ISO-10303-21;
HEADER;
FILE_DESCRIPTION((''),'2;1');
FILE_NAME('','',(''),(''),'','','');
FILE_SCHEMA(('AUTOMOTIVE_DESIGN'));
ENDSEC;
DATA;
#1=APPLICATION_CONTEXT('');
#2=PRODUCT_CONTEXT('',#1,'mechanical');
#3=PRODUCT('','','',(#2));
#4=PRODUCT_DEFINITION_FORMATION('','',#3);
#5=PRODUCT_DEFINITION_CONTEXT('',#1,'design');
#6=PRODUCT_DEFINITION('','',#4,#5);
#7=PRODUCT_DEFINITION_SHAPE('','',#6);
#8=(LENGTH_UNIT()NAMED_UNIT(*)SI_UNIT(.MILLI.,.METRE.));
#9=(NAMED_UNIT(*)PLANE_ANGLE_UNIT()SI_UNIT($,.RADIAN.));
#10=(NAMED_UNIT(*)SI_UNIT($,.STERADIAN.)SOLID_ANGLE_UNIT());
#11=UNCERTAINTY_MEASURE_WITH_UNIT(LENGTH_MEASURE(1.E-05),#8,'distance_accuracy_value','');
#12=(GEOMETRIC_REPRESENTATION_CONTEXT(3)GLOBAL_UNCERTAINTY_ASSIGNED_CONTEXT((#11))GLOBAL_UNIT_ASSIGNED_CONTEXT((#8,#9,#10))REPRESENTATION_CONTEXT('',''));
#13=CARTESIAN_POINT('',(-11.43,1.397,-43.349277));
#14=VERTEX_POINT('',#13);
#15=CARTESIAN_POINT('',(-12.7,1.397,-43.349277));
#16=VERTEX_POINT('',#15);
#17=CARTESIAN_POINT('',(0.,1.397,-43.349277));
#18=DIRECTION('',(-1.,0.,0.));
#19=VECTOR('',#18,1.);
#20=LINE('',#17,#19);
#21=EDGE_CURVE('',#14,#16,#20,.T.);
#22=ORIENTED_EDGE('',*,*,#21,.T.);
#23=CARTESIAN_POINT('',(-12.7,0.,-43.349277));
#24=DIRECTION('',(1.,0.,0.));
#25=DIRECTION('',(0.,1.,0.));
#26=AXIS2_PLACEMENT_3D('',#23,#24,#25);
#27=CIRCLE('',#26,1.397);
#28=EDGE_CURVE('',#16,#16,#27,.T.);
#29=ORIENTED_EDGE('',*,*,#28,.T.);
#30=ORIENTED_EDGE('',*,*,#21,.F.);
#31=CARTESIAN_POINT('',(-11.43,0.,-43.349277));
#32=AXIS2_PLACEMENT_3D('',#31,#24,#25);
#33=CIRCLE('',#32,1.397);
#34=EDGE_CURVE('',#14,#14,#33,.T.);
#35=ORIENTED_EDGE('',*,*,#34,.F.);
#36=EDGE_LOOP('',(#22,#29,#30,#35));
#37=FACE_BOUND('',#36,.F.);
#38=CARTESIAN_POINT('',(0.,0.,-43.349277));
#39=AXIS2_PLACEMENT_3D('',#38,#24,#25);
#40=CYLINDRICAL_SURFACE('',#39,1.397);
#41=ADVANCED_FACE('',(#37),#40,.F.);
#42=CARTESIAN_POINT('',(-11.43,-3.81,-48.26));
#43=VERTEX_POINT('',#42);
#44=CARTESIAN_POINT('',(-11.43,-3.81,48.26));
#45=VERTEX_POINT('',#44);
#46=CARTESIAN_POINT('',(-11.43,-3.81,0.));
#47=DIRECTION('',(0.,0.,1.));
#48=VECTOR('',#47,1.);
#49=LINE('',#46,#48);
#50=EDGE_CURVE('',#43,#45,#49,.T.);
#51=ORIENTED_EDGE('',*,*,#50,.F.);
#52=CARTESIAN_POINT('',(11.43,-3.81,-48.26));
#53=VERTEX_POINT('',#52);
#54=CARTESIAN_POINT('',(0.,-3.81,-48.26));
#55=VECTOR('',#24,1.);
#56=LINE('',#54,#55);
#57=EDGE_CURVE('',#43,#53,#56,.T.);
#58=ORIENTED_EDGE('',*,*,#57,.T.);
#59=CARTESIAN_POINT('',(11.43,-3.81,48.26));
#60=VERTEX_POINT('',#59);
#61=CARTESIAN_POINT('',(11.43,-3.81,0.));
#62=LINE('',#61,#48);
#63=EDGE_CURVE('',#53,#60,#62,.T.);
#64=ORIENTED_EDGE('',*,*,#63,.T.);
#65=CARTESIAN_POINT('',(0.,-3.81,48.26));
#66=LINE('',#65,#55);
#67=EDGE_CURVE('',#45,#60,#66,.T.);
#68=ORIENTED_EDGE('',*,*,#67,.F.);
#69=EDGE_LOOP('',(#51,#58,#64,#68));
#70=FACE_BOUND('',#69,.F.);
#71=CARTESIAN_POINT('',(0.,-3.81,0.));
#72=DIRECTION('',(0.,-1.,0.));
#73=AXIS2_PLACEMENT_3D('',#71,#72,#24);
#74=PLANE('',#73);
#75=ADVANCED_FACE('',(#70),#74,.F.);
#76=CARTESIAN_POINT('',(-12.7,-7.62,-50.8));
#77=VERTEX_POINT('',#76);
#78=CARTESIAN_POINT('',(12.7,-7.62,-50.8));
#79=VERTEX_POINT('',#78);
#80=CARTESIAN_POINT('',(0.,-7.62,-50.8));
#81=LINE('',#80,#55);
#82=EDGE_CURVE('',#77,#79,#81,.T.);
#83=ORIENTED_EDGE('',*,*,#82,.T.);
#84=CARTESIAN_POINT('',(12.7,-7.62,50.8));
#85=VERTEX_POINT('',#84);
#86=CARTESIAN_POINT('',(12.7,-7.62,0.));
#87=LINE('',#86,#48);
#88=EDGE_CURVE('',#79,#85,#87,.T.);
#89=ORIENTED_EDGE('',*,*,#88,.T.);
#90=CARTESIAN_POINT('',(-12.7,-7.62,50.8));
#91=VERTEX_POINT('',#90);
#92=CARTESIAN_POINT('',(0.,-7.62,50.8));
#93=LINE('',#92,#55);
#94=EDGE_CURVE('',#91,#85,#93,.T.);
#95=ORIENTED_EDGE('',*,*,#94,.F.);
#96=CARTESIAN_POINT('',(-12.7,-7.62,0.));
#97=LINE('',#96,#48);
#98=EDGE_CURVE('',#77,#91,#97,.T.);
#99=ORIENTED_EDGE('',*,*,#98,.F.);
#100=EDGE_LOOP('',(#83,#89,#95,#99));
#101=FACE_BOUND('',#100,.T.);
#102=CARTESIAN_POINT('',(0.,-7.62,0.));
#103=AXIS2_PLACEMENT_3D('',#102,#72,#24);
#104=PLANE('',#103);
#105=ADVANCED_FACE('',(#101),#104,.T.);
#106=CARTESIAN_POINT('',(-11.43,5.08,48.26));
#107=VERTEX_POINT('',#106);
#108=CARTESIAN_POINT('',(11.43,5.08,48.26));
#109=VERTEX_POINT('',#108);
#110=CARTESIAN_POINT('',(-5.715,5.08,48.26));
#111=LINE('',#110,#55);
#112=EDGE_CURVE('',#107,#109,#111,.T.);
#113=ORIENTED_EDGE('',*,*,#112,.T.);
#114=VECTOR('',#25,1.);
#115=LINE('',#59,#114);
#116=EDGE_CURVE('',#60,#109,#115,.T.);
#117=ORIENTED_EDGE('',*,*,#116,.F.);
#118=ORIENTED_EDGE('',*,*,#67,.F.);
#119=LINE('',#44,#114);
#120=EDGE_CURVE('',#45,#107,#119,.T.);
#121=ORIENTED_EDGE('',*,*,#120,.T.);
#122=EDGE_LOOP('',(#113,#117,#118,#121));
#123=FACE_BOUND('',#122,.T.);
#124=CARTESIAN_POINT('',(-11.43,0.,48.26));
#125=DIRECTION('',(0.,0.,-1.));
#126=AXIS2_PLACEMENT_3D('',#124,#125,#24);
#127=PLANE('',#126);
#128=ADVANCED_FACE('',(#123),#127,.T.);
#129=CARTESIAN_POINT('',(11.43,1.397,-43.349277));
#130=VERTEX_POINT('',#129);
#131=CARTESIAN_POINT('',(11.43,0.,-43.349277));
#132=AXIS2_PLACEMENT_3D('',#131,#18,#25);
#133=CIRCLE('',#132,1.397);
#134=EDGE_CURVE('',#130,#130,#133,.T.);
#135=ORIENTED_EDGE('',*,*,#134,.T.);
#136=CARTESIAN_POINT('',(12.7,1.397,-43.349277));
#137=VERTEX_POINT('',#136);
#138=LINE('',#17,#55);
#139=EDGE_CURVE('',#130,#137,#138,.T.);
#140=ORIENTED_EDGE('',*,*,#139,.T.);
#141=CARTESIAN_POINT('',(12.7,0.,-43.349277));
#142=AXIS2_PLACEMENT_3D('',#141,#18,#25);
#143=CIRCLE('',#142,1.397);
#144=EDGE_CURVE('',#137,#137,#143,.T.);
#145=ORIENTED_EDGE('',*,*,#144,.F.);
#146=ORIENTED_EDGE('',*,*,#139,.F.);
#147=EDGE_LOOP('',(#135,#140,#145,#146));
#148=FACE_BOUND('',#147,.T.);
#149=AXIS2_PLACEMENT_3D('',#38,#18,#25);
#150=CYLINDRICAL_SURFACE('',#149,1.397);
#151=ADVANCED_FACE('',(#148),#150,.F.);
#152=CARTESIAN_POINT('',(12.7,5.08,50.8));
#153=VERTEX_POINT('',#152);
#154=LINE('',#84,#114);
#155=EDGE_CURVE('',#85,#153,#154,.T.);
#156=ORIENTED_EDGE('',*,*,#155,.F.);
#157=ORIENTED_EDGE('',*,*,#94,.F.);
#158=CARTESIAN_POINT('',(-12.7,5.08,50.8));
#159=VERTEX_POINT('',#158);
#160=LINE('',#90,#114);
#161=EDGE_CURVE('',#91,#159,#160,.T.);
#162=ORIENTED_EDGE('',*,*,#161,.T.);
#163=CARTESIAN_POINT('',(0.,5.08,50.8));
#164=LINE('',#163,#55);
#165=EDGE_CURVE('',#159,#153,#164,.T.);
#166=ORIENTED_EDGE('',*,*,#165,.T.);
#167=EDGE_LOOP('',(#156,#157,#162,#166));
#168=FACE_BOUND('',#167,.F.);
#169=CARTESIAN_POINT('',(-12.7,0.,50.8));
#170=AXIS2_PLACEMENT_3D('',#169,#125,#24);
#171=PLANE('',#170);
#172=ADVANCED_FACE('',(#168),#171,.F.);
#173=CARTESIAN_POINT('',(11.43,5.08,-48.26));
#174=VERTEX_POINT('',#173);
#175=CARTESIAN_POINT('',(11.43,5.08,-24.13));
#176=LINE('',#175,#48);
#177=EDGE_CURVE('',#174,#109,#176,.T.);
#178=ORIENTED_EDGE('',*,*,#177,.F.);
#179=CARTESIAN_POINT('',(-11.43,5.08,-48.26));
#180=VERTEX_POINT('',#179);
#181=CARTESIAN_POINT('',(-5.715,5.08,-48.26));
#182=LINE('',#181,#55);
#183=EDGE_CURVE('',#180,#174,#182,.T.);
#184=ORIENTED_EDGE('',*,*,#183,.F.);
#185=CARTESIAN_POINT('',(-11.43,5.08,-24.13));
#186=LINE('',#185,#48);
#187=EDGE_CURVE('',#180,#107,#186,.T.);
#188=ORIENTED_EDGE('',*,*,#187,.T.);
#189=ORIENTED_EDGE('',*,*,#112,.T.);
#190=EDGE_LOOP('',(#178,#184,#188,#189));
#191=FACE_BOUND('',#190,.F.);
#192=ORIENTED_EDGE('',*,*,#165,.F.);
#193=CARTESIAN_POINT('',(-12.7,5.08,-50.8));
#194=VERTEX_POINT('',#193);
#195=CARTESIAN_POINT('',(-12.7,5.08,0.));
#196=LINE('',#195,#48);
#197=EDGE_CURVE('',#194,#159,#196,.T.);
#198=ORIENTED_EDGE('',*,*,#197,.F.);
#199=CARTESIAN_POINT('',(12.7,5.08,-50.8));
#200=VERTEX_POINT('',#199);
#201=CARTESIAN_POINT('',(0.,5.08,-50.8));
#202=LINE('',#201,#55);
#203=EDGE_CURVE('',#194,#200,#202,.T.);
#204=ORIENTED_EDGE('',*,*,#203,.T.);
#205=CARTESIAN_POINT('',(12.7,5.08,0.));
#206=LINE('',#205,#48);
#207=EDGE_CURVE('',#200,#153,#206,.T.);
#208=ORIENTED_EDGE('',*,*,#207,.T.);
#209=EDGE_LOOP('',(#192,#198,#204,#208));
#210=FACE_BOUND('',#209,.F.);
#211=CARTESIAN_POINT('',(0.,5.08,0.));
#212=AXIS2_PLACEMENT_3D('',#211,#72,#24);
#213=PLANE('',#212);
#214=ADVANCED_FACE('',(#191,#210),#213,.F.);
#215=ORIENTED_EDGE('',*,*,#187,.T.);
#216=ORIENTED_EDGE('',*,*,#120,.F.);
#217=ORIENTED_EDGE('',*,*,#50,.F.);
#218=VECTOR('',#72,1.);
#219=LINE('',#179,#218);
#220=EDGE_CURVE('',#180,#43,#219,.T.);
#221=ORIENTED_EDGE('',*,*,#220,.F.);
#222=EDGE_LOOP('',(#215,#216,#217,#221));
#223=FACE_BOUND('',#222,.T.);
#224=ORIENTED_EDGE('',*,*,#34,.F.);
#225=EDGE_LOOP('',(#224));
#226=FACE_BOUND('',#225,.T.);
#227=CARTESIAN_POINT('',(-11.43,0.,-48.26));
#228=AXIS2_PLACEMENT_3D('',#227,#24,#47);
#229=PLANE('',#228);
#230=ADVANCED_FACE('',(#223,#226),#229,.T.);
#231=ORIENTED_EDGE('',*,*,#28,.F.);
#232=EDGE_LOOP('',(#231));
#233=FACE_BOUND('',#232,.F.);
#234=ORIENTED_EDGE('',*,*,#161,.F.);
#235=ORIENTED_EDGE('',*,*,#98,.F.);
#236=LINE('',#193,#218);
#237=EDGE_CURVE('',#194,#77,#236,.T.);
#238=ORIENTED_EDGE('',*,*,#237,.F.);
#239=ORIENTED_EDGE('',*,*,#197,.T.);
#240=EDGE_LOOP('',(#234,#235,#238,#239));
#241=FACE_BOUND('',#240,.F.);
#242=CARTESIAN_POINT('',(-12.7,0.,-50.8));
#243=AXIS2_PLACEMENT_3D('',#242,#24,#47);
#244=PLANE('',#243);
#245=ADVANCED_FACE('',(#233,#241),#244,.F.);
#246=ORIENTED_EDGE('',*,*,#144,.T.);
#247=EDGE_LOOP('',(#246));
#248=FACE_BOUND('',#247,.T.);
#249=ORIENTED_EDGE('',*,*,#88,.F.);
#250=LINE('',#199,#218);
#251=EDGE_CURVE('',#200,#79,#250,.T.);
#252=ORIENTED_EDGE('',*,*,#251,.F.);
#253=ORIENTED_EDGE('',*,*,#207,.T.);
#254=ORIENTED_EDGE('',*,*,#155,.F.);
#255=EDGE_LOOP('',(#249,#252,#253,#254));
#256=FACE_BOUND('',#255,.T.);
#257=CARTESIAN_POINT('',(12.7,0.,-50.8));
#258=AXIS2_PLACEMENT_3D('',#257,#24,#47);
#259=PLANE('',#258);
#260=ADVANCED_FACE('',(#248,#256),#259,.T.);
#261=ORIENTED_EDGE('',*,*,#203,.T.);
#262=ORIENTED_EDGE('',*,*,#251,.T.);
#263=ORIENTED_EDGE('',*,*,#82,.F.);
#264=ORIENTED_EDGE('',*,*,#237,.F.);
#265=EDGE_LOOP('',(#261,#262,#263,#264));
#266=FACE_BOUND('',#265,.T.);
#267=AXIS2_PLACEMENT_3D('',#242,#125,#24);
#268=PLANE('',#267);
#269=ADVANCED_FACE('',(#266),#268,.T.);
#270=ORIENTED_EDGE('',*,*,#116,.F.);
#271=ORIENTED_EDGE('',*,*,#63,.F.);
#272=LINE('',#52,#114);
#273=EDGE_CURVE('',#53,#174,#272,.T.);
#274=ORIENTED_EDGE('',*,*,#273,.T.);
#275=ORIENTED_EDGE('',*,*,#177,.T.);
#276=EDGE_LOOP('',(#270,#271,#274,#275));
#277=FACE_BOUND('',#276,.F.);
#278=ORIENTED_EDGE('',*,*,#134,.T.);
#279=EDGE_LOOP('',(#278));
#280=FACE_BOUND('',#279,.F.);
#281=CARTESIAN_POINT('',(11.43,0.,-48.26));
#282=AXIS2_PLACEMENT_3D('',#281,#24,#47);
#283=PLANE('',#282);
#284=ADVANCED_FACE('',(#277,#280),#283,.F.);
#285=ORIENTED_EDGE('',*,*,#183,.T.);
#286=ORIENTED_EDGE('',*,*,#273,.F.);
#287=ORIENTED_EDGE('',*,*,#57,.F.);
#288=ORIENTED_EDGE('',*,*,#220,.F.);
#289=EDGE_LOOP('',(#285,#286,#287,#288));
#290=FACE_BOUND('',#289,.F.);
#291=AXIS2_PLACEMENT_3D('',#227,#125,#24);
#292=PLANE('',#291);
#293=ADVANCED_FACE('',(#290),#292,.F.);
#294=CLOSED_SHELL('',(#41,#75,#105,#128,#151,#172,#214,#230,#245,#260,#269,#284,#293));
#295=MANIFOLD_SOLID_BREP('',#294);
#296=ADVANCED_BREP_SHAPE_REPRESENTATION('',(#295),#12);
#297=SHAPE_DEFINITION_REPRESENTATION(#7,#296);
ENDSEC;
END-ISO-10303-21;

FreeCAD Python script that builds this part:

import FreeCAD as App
import Part
import Sketcher

V = App.Vector
Q = App.Units.Quantity


def add_polygon(sketch, points):
    """Adds a closed chain of lines whose ends are joined by coincident constraints."""
    first, n = sketch.GeometryCount, len(points)
    for a, b in zip(points, points[1:] + points[:1]):
        sketch.addGeometry(Part.LineSegment(App.Vector(*a, 0), App.Vector(*b, 0)), False)
    for i in range(n):
        sketch.addConstraint(Sketcher.Constraint("Coincident", first + i, 2, first + (i + 1) % n, 1))

doc = App.newDocument("Part")
body = doc.addObject("PartDesign::Body", "Body")

sketch1 = body.newObject("Sketcher::SketchObject", "Sketch")
sketch1.AttachmentSupport = (doc.getObject("XZ_Plane"), [""])
sketch1.MapMode = "FlatFace"
add_polygon(sketch1, [(-12.7, 50.8), (-12.7, -50.8), (12.7, -50.8), (12.7, 50.8)])
sketch1.addConstraint(Sketcher.Constraint("Vertical", 0))
sketch1.addConstraint(Sketcher.Constraint("Horizontal", 1))
sketch1.addConstraint(Sketcher.Constraint("Vertical", 2))
sketch1.addConstraint(Sketcher.Constraint("Horizontal", 3))
sketch1.addConstraint(Sketcher.Constraint("Symmetric", 0, 2, 2, 2, -1, 1))
sketch1.addConstraint(Sketcher.Constraint("DistanceX", 1, 1, 1, 2, Q("1 in")))
sketch1.addConstraint(Sketcher.Constraint("DistanceY", 0, 2, 0, 1, Q("4 in")))
pad1 = body.newObject("PartDesign::Pad", "Pad")
pad1.Profile = sketch1
pad1.Type = "TwoLengths"
pad1.Length = Q("0.3 in")
pad1.Length2 = Q("0.2 in")

sketch2 = body.newObject("Sketcher::SketchObject", "Sketch001")
sketch2.AttachmentSupport = (doc.getObject("XZ_Plane"), [""])
sketch2.MapMode = "FlatFace"
add_polygon(sketch2, [(-11.43, 48.26), (-11.43, -48.26), (11.43, -48.26), (11.43, 48.26)])
sketch2.addConstraint(Sketcher.Constraint("Vertical", 0))
sketch2.addConstraint(Sketcher.Constraint("Horizontal", 1))
sketch2.addConstraint(Sketcher.Constraint("Vertical", 2))
sketch2.addConstraint(Sketcher.Constraint("Horizontal", 3))
sketch2.addConstraint(Sketcher.Constraint("Symmetric", 0, 2, 2, 2, -1, 1))
sketch2.addConstraint(Sketcher.Constraint("DistanceX", 1, 1, 1, 2, Q("0.9 in")))
sketch2.addConstraint(Sketcher.Constraint("DistanceY", 0, 2, 0, 1, Q("3.8 in")))
pocket1 = body.newObject("PartDesign::Pocket", "Pocket")
pocket1.Profile = sketch2
pocket1.Type = "TwoLengths"
pocket1.Length = Q("0.15 in")
pocket1.Length2 = Q("1 in")
pocket1.Reversed = True

sketch3 = body.newObject("Sketcher::SketchObject", "Sketch002")
sketch3.AttachmentSupport = (doc.getObject("YZ_Plane"), [""])
sketch3.MapMode = "FlatFace"
sketch3.addGeometry(Part.Circle(V(0, -43.349277, 0), V(0, 0, 1), 1.397), False)
sketch3.addConstraint(Sketcher.Constraint("PointOnObject", 0, 3, -2))
sketch3.addConstraint(Sketcher.Constraint("Diameter", 0, Q("0.11 in")))
sketch3.addConstraint(Sketcher.Constraint("DistanceY", 0, 3, -1, 1, Q("43.349277 mm")))
pocket2 = body.newObject("PartDesign::Pocket", "Pocket001")
pocket2.Profile = sketch3
pocket2.Type = "ThroughAll"
pocket2.Midplane = True

doc.recompute()
